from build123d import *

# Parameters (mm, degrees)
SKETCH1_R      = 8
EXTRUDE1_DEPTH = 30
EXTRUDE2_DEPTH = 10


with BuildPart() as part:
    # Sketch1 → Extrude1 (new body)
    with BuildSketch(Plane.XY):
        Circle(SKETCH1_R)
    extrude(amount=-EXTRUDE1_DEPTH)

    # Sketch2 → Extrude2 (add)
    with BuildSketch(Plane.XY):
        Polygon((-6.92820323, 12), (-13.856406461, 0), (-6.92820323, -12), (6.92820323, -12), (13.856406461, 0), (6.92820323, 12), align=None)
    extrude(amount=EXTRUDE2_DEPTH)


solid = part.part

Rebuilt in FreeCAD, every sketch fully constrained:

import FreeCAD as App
import Part
import Sketcher

V = App.Vector
Q = App.Units.Quantity

doc = App.newDocument("Part")
body = doc.addObject("PartDesign::Body", "Body")

# Sketch on XY plane
sketch1 = doc.addObject("Sketcher::SketchObject", "Sketch")
body.addObject(sketch1)
sketch1.AttachmentSupport = (doc.XY_Plane, [""])
sketch1.MapMode = "FlatFace"
sketch1.addGeometry(Part.Circle(V(0, 0, 0), V(0, 0, 1), 8), False)
sketch1.addConstraint(Sketcher.Constraint("Coincident", 0, 3, -1, 1))
sketch1.addConstraint(Sketcher.Constraint("Diameter", 0, 16.0))
pad1 = doc.addObject("PartDesign::Pad", "Pad")
body.addObject(pad1)
pad1.Profile = sketch1
pad1.Length = 30
pad1.Reversed = True

# Sketch on XY plane
sketch2 = doc.addObject("Sketcher::SketchObject", "Sketch001")
body.addObject(sketch2)
sketch2.AttachmentSupport = (doc.XY_Plane, [""])
sketch2.MapMode = "FlatFace"
sketch2.addGeometry(Part.LineSegment(V(-7, 12, 0), V(-14, 0, 0)), False)
sketch2.addGeometry(Part.LineSegment(V(-14, 0, 0), V(-7, -12, 0)), False)
sketch2.addGeometry(Part.LineSegment(V(-7, -12, 0), V(7, -12, 0)), False)
sketch2.addGeometry(Part.LineSegment(V(7, -12, 0), V(14, 0, 0)), False)
sketch2.addGeometry(Part.LineSegment(V(14, 0, 0), V(7, 12, 0)), False)
sketch2.addGeometry(Part.LineSegment(V(7, 12, 0), V(-7, 12, 0)), False)
sketch2.addConstraint(Sketcher.Constraint("Coincident", 0, 2, 1, 1))
sketch2.addConstraint(Sketcher.Constraint("Coincident", 1, 2, 2, 1))
sketch2.addConstraint(Sketcher.Constraint("Coincident", 2, 2, 3, 1))
sketch2.addConstraint(Sketcher.Constraint("Coincident", 3, 2, 4, 1))
sketch2.addConstraint(Sketcher.Constraint("Coincident", 4, 2, 5, 1))
sketch2.addConstraint(Sketcher.Constraint("Coincident", 5, 2, 0, 1))
sketch2.addConstraint(Sketcher.Constraint("Horizontal", 2))
sketch2.addConstraint(Sketcher.Constraint("Horizontal", 5))
sketch2.addConstraint(Sketcher.Constraint("Symmetric", 0, 2, 3, 2, -1, 1))
sketch2.addConstraint(Sketcher.Constraint("Symmetric", 1, 2, 4, 2, -1, 1))
sketch2.addConstraint(Sketcher.Constraint("PointOnObject", 0, 2, -1))
sketch2.addConstraint(Sketcher.Constraint("Parallel", 0, 3))
sketch2.addConstraint(Sketcher.Constraint("Vertical", 2, 2, 4, 2))
sketch2.addConstraint(Sketcher.Constraint("Angle", 0, Q("-120 deg")))
sketch2.addConstraint(Sketcher.Constraint("DistanceY", 1, 2, -1, 1, 12.0))
sketch2.addConstraint(Sketcher.Constraint("DistanceX", 2, 1, 2, 2, 13.856406))
pad2 = doc.addObject("PartDesign::Pad", "Pad001")
body.addObject(pad2)
pad2.Profile = sketch2
pad2.Length = 10

doc.recompute()
